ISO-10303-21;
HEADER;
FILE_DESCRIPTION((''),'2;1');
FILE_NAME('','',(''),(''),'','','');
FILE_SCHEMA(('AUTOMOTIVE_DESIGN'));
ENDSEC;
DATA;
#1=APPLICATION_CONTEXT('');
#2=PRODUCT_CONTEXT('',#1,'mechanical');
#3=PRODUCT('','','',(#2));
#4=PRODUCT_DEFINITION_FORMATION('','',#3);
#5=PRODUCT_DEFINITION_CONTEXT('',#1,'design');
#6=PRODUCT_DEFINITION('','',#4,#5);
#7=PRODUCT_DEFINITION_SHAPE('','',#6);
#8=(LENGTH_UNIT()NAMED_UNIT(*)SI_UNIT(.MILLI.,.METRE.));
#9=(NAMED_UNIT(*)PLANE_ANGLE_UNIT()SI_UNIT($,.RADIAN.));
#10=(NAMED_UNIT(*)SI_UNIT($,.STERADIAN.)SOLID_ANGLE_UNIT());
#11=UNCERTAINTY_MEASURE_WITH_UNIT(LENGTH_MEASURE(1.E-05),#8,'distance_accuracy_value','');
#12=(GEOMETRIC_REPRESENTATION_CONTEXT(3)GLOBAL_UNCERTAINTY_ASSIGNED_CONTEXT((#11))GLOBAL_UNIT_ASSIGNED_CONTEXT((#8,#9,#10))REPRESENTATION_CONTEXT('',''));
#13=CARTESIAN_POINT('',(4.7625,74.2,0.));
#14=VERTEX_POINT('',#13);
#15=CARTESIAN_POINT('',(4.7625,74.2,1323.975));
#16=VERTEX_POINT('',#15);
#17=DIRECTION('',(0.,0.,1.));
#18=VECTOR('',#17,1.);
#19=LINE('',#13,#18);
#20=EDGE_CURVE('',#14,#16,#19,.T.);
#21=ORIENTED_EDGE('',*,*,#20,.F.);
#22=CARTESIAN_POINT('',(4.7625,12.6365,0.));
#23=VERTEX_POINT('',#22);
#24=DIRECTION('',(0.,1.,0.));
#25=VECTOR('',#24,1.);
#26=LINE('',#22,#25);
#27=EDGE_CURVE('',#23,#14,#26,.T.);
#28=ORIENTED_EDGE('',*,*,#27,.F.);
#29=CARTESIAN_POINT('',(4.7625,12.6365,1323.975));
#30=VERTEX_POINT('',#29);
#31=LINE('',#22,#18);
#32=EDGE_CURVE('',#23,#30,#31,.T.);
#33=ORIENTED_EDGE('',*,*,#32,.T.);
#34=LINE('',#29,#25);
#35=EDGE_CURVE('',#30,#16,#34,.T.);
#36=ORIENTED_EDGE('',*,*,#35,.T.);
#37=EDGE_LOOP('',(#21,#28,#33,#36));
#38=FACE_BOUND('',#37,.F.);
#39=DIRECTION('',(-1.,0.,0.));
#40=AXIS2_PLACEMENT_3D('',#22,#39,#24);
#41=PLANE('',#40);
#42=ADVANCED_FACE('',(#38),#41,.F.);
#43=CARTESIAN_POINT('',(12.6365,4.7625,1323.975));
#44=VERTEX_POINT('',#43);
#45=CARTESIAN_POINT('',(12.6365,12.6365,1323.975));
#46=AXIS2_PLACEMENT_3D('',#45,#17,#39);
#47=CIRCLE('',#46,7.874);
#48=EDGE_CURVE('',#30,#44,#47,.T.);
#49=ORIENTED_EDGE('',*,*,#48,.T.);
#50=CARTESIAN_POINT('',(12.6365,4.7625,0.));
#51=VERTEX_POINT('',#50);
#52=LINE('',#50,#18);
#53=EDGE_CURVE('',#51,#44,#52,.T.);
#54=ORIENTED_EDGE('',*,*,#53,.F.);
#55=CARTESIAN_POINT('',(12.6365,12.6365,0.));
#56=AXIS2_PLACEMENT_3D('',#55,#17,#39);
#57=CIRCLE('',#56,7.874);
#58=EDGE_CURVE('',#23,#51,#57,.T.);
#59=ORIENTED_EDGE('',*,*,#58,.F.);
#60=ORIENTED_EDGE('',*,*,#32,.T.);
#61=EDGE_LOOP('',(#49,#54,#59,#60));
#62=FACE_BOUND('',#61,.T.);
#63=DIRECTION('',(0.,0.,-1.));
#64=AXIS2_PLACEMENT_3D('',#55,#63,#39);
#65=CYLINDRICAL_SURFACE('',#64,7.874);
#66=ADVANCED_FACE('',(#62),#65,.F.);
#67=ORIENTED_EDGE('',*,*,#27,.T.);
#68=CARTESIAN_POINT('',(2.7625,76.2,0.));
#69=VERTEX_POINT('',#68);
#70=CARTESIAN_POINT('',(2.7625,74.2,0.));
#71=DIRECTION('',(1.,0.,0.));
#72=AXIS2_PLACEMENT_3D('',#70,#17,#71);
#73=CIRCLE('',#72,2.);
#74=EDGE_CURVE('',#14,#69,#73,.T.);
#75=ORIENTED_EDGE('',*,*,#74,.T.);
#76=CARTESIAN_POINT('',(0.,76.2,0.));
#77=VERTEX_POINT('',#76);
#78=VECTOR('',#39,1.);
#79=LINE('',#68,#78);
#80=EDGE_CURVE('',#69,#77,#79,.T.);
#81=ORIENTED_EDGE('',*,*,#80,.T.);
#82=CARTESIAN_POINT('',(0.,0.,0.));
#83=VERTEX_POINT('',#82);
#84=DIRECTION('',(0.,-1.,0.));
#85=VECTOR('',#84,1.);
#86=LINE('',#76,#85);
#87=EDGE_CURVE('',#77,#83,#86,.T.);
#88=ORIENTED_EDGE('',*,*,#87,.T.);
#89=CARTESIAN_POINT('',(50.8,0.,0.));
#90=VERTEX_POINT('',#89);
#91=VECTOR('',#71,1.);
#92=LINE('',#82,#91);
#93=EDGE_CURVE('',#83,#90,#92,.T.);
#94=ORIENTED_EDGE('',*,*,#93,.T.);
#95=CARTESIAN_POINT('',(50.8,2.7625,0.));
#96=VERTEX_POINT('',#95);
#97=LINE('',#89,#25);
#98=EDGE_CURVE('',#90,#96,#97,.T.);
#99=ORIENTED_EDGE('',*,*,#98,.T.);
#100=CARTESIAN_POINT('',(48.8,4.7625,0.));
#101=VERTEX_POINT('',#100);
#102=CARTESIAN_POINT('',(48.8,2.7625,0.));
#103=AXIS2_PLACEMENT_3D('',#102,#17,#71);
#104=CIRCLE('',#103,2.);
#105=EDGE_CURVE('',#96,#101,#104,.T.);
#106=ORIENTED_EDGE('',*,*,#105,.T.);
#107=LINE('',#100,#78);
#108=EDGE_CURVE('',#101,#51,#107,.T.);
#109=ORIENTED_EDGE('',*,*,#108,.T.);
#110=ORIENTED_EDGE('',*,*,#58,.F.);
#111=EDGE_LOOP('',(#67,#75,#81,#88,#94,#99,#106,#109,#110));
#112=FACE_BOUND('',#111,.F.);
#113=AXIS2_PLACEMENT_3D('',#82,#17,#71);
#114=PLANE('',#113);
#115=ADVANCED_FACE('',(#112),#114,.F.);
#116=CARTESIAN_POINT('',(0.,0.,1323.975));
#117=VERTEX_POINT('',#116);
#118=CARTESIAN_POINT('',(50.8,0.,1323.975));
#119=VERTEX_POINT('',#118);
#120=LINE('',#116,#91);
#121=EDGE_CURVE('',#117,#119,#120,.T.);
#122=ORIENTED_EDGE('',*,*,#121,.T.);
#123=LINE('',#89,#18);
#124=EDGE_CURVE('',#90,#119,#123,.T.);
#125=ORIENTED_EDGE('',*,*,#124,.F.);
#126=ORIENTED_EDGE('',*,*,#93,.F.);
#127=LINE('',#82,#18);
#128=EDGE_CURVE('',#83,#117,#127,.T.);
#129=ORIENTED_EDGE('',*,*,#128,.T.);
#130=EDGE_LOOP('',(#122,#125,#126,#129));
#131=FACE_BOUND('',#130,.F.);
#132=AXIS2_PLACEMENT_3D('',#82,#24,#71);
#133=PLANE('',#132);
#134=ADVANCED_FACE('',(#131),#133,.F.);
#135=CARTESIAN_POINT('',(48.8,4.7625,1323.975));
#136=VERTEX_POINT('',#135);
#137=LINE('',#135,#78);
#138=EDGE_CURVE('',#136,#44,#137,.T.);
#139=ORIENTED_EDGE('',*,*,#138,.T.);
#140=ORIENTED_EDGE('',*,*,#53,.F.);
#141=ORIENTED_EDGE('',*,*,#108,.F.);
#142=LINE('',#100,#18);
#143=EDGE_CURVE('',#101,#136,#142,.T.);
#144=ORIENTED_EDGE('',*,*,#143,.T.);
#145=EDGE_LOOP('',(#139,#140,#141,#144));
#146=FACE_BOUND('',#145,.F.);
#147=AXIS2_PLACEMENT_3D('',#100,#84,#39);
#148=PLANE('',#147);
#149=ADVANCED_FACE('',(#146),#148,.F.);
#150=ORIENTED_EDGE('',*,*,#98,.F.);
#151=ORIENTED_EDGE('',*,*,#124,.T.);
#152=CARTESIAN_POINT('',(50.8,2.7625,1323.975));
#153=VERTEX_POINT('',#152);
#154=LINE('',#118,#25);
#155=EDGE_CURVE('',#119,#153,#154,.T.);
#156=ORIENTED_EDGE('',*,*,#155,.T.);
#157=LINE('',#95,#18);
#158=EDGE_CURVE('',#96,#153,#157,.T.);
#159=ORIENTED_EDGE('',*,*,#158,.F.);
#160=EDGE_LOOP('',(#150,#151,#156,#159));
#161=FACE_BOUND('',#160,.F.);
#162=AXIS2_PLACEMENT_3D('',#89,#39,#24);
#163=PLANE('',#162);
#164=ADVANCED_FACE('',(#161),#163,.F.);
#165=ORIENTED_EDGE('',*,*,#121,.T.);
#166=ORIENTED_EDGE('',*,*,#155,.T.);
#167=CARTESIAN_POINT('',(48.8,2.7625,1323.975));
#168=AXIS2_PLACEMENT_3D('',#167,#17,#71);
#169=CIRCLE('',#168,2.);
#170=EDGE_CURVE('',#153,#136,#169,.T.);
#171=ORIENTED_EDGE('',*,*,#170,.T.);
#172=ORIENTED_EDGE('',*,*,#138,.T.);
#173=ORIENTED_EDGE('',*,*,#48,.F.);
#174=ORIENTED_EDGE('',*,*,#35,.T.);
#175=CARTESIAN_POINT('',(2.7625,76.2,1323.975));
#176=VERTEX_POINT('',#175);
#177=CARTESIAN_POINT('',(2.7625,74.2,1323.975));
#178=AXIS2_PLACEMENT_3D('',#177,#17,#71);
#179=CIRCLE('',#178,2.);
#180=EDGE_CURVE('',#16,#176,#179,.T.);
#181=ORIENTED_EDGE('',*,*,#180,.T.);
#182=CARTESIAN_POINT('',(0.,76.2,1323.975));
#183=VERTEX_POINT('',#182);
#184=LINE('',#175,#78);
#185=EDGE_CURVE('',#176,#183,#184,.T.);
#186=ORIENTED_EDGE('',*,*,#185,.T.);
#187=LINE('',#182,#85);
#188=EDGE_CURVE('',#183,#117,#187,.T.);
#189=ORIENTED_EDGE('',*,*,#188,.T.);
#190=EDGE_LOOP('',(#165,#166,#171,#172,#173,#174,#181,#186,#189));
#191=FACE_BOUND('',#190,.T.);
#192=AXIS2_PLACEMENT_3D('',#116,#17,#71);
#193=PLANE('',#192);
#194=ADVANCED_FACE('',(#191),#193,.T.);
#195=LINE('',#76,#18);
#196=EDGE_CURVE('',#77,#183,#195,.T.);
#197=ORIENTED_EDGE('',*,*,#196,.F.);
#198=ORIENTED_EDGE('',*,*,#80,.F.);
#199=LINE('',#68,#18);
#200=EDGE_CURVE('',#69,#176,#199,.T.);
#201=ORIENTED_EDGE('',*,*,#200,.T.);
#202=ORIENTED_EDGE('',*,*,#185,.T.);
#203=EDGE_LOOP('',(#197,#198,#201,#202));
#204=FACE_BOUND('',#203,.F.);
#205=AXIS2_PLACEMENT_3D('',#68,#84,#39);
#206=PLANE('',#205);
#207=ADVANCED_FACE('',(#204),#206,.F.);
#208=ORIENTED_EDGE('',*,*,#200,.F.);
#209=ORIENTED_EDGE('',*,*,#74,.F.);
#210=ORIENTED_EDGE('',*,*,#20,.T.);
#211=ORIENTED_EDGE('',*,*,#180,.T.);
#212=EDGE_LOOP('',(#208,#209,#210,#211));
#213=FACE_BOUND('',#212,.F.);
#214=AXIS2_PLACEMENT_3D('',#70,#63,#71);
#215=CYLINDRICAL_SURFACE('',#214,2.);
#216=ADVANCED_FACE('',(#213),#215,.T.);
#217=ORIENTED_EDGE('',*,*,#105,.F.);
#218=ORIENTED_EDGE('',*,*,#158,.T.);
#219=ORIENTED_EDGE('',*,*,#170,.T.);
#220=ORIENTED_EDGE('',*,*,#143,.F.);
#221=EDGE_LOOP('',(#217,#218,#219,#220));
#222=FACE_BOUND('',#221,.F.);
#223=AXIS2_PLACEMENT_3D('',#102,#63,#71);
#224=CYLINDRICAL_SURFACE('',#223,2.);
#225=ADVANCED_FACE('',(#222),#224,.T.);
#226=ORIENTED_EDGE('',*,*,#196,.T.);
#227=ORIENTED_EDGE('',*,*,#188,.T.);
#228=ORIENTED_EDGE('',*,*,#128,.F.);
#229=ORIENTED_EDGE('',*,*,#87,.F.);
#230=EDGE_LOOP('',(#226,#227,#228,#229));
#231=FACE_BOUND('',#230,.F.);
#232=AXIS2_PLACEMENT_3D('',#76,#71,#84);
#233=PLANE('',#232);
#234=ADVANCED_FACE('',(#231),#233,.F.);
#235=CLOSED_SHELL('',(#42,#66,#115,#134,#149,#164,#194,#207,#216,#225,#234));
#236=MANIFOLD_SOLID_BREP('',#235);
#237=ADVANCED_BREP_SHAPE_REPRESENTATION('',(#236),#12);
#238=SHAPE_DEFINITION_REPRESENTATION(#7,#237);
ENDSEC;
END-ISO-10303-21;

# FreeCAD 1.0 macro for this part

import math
import FreeCAD as App
import Part
import Sketcher

V = App.Vector
Q = App.Units.Quantity

doc = App.newDocument("Part")
body = doc.addObject("PartDesign::Body", "Body")

# Sketch on XY plane
sketch1 = body.newObject("Sketcher::SketchObject", "Sketch")
sketch1.AttachmentSupport = (doc.getObject("XY_Plane"), [""])
sketch1.MapMode = "FlatFace"
sketch1.addGeometry(Part.LineSegment(V(2.7625, 76.2, 0), V(0, 76.2, 0)), False)
sketch1.addGeometry(Part.LineSegment(V(0, 76.2, 0), V(0, 0, 0)), False)
sketch1.addGeometry(Part.LineSegment(V(0, 0, 0), V(50.8, 0, 0)), False)
sketch1.addGeometry(Part.LineSegment(V(50.8, 0, 0), V(50.8, 2.7625, 0)), False)
sketch1.addGeometry(Part.ArcOfCircle(Part.Circle(V(48.8, 2.7625, 0), V(0, 0, 1), 2), math.radians(0), math.radians(90)), False)
sketch1.addGeometry(Part.LineSegment(V(48.8, 4.7625, 0), V(12.6365, 4.7625, 0)), False)
sketch1.addGeometry(Part.ArcOfCircle(Part.Circle(V(12.6365, 12.6365, 0), V(0, 0, 1), 7.874), math.radians(180), math.radians(270)), False)
sketch1.addGeometry(Part.LineSegment(V(4.7625, 12.6365, 0), V(4.7625, 74.2, 0)), False)
sketch1.addGeometry(Part.ArcOfCircle(Part.Circle(V(2.7625, 74.2, 0), V(0, 0, 1), 2), math.radians(0), math.radians(90)), False)
sketch1.addConstraint(Sketcher.Constraint("Coincident", 0, 2, 1, 1))
sketch1.addConstraint(Sketcher.Constraint("Coincident", 1, 2, 2, 1))
sketch1.addConstraint(Sketcher.Constraint("Coincident", 2, 2, 3, 1))
sketch1.addConstraint(Sketcher.Constraint("Tangent", 3, 2, 4, 1))
sketch1.addConstraint(Sketcher.Constraint("Tangent", 4, 2, 5, 1))
sketch1.addConstraint(Sketcher.Constraint("Tangent", 5, 2, 6, 2))
sketch1.addConstraint(Sketcher.Constraint("Tangent", 6, 1, 7, 1))
sketch1.addConstraint(Sketcher.Constraint("Tangent", 7, 2, 8, 1))
sketch1.addConstraint(Sketcher.Constraint("Tangent", 8, 2, 0, 1))
sketch1.addConstraint(Sketcher.Constraint("Horizontal", 0))
sketch1.addConstraint(Sketcher.Constraint("Vertical", 1))
sketch1.addConstraint(Sketcher.Constraint("Horizontal", 2))
sketch1.addConstraint(Sketcher.Constraint("Vertical", 3))
sketch1.addConstraint(Sketcher.Constraint("Horizontal", 5))
sketch1.addConstraint(Sketcher.Constraint("Vertical", 7))
sketch1.addConstraint(Sketcher.Constraint("Coincident", 1, 2, -1, 1))
sketch1.addConstraint(Sketcher.Constraint("Equal", 4, 8))
sketch1.addConstraint(Sketcher.Constraint("Equal", 0, 3))
sketch1.addConstraint(Sketcher.Constraint("DistanceX", 2, 1, 2, 2, Q("2 in")))
sketch1.addConstraint(Sketcher.Constraint("DistanceY", 1, 2, 1, 1, Q("3 in")))
sketch1.addConstraint(Sketcher.Constraint("Radius", 6, Q("0.31 in")))
sketch1.addConstraint(Sketcher.Constraint("Radius", 4, Q("2 mm")))
sketch1.addConstraint(Sketcher.Constraint("DistanceY", -1, 1, 4, 2, Q("0.1875 in")))
pad1 = body.newObject("PartDesign::Pad", "Pad")
pad1.Profile = sketch1
pad1.Length = Q("52.125 in")

doc.recompute()
